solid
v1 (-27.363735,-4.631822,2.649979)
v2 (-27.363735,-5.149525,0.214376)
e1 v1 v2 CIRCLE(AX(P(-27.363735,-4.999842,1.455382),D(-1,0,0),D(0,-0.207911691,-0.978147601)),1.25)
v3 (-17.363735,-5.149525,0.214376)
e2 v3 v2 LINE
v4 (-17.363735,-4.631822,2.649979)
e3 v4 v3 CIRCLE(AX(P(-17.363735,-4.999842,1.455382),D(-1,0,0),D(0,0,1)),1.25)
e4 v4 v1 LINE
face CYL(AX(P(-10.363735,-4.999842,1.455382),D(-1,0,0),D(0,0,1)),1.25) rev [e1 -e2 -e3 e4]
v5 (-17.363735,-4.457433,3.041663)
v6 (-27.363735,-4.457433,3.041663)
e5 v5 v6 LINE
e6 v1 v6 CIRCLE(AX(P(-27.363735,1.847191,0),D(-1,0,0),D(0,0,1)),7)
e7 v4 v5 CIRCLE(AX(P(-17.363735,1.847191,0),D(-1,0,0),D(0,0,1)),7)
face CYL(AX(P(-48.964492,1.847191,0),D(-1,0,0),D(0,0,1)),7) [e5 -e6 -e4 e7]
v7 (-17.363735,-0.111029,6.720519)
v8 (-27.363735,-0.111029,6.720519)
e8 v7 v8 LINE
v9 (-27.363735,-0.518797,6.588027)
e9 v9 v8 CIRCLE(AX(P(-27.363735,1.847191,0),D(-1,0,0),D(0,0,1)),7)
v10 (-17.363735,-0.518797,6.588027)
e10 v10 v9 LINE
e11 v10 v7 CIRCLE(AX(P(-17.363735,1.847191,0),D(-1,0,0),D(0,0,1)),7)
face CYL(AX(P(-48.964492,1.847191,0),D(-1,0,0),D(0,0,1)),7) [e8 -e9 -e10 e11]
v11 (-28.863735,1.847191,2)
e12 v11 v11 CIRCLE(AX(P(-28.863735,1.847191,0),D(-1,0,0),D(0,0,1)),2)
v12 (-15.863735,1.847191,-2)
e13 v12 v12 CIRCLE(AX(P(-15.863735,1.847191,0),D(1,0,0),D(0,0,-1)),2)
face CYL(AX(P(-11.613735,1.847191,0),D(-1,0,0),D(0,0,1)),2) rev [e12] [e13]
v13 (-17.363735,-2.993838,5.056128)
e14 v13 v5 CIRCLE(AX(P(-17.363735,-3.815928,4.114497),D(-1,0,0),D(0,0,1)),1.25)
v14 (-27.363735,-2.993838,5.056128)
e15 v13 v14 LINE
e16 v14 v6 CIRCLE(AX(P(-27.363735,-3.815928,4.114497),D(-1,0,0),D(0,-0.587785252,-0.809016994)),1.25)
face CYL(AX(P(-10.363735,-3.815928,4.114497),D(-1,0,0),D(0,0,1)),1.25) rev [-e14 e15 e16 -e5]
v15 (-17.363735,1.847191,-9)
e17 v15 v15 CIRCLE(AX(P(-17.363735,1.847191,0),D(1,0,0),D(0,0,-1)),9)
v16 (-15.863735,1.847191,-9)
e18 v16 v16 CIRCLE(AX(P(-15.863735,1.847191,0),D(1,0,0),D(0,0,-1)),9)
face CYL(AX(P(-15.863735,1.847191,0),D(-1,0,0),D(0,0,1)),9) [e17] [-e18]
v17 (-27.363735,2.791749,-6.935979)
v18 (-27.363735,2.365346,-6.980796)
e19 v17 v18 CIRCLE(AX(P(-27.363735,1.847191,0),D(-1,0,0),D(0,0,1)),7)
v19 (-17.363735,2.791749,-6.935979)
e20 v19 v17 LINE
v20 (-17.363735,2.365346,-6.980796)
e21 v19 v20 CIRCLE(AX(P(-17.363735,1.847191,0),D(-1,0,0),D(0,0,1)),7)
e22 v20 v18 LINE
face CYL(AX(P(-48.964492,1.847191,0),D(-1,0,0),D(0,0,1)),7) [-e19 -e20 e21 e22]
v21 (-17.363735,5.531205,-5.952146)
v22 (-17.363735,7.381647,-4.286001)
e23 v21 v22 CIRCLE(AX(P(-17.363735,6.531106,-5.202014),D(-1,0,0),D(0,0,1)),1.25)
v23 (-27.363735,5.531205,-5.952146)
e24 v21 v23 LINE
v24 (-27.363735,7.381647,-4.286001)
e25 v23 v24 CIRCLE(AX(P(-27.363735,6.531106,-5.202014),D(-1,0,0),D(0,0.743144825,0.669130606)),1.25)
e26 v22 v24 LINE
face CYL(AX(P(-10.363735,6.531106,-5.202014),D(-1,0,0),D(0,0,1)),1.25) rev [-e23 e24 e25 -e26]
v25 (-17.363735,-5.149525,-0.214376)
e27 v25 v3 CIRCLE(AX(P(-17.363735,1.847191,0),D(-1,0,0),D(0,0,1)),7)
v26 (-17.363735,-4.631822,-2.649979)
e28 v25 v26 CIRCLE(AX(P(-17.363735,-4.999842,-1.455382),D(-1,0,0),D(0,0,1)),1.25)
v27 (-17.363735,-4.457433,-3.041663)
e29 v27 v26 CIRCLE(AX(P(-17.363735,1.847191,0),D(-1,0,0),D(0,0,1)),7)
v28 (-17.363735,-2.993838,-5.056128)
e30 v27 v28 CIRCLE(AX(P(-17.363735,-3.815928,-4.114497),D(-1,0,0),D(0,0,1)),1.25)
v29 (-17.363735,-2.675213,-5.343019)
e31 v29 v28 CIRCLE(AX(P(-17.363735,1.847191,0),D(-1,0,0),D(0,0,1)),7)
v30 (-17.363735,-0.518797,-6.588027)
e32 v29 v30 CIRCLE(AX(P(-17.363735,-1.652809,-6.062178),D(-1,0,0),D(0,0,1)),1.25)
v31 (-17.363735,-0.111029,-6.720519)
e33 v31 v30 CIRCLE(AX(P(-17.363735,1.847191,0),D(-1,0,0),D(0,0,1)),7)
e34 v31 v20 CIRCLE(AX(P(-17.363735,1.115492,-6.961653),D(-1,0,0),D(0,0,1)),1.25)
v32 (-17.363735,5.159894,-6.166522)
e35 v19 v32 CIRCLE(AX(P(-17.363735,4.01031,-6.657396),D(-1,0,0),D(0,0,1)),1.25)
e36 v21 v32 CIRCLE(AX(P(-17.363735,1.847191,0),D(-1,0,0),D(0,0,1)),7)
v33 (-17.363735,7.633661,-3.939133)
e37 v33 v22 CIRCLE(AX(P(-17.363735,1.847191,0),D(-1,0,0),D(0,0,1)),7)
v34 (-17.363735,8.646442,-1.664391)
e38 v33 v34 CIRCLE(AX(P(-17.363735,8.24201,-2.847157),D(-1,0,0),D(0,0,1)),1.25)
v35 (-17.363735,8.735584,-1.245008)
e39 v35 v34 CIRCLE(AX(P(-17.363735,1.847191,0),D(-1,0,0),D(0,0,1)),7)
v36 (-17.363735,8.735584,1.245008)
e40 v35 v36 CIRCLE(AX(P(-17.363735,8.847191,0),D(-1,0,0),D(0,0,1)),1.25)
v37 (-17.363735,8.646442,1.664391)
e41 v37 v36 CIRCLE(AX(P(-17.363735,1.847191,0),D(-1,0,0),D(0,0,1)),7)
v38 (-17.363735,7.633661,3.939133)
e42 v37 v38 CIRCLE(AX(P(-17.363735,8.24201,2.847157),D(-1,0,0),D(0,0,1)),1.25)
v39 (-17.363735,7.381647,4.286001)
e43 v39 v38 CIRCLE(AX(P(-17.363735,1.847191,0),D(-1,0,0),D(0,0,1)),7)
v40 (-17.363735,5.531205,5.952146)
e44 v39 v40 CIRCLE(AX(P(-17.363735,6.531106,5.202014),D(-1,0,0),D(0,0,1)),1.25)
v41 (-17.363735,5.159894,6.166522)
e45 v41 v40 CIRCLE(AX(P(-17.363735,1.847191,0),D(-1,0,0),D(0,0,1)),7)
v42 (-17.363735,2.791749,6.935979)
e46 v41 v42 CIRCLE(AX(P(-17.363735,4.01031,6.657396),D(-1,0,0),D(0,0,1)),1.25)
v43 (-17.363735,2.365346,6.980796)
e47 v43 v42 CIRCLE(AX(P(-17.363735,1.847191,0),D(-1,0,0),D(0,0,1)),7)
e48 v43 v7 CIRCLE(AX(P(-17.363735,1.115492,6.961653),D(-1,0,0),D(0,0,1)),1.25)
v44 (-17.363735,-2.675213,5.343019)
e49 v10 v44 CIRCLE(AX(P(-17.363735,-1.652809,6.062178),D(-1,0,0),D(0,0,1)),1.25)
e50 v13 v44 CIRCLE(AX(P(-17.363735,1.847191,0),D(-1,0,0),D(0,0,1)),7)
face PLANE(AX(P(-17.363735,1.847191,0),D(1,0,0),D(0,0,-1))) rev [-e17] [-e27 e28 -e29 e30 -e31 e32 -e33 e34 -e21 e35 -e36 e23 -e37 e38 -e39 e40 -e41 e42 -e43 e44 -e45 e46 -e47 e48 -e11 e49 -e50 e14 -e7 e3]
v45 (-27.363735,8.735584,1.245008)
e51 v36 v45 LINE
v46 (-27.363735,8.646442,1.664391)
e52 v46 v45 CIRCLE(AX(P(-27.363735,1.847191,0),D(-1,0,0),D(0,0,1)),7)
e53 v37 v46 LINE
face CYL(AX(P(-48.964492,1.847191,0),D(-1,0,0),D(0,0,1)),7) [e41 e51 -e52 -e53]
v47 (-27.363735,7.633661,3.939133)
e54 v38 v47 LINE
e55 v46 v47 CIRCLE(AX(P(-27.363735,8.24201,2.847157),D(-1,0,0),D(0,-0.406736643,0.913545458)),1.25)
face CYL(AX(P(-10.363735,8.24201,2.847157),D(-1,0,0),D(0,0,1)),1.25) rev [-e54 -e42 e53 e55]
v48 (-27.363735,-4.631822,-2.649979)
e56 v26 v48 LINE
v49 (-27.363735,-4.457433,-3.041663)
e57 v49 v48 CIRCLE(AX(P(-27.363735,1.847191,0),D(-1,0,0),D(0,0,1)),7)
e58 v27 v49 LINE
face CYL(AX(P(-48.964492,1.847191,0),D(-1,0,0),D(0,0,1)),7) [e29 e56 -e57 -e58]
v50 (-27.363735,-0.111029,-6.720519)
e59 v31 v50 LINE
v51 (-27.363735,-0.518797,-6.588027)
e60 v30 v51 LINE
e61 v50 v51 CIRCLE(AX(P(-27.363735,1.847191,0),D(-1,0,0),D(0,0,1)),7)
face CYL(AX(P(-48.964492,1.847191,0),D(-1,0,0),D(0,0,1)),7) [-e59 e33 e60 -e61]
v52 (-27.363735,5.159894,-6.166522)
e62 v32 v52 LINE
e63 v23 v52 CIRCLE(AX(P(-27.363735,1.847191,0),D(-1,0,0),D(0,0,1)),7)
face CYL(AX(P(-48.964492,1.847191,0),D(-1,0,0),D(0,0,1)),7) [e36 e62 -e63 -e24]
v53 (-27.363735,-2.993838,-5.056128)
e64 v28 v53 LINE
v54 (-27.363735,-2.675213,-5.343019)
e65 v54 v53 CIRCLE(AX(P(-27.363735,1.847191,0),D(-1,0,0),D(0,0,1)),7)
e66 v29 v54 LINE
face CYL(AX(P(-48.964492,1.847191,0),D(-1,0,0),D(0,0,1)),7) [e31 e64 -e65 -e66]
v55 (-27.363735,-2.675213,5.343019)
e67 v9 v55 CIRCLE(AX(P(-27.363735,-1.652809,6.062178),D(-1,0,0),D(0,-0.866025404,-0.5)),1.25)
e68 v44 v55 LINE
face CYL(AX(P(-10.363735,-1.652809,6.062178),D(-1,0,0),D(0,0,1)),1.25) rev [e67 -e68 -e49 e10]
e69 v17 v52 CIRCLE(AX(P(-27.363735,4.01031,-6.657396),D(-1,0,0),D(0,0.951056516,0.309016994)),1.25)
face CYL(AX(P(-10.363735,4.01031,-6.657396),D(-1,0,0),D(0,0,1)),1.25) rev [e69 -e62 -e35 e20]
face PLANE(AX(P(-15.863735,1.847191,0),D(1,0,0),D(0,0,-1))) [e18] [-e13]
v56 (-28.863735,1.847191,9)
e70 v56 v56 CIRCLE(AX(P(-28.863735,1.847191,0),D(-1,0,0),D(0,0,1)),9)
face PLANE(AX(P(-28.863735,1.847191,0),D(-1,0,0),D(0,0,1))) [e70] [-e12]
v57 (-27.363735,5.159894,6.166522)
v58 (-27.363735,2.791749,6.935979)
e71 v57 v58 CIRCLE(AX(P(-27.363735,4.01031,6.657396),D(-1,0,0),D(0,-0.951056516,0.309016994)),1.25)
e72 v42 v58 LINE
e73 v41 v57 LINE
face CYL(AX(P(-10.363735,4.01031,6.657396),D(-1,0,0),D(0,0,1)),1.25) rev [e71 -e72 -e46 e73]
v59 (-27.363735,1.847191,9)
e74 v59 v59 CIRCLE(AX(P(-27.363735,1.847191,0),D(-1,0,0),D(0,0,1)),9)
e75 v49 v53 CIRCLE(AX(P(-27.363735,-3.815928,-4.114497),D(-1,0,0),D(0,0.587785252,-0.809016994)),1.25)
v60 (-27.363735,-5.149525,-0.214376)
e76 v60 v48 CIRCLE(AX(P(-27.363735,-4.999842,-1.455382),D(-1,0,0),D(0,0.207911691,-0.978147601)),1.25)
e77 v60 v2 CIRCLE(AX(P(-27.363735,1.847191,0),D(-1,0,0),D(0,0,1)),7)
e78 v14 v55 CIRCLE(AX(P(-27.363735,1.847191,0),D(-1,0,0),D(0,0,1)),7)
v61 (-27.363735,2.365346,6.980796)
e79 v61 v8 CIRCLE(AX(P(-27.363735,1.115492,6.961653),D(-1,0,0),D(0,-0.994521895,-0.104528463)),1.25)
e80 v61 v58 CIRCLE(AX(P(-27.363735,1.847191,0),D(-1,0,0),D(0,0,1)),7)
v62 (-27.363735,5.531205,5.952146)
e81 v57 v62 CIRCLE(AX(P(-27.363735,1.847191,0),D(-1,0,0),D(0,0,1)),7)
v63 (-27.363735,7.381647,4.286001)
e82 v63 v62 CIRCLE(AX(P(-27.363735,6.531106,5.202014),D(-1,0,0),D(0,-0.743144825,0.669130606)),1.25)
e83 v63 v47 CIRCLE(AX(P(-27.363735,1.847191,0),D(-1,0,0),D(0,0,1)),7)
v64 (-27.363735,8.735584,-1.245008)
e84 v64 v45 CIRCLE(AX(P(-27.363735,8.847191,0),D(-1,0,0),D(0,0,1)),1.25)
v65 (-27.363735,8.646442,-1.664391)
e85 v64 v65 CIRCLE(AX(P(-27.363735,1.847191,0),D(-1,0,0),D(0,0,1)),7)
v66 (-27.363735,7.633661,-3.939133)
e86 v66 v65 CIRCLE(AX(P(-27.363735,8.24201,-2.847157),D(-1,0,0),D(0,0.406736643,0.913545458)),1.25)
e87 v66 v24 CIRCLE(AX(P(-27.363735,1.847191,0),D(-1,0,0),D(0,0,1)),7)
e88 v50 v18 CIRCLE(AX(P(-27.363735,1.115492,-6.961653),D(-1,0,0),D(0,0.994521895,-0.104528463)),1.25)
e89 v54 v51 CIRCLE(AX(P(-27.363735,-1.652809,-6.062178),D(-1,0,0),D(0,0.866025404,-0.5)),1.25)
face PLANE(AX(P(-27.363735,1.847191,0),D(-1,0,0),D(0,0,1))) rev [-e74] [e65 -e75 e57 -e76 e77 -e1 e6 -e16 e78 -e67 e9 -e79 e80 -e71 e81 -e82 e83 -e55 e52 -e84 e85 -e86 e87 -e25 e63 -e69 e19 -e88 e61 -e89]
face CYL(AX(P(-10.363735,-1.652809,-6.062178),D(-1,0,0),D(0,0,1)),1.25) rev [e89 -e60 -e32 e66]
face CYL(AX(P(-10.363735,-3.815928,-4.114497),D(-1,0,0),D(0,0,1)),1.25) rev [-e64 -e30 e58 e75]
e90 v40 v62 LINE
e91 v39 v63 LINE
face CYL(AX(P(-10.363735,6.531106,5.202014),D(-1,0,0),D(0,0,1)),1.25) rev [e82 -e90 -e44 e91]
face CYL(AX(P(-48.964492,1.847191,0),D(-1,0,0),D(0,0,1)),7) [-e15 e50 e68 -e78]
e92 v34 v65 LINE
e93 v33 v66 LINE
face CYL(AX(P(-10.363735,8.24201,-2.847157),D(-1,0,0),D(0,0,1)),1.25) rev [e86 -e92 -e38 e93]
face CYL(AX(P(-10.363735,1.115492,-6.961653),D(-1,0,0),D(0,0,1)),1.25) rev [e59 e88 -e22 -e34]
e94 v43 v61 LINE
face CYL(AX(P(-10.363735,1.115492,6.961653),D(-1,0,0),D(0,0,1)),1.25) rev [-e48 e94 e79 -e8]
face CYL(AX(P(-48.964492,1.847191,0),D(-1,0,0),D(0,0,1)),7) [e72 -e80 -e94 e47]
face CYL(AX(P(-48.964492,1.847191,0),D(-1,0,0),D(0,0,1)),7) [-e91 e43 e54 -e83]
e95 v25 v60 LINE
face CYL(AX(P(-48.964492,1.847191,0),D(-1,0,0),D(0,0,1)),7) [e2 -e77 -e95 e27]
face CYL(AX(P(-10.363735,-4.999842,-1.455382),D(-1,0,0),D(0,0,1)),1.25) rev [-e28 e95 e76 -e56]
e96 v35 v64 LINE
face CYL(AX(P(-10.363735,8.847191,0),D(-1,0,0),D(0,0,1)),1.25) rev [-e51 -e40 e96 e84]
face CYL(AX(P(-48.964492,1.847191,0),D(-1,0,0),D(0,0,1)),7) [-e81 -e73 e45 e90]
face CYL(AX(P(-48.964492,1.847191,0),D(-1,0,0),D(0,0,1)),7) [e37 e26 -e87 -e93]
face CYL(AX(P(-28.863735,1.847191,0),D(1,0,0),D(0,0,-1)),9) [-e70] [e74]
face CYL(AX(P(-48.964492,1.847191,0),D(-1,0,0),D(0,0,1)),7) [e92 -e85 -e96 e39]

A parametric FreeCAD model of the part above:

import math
import FreeCAD as App
import Part
import Sketcher
from FreeCAD import Vector

doc = App.newDocument("Part")
params = doc.addObject("Spreadsheet::Sheet", "Params")
for row, (alias, value) in enumerate([
    ("sketch1_width", "10 mm"),
    ("sketch1_height", "5 mm"),
    ("sketch1_height2", "2 mm"),
    ("sketch1_width2", "12.5 mm"),
    ("revolution_angle", "360 deg"),
    ("sketch2_diameter", "4 mm"),
    ("pocket1_length", "17 mm"),
    ("sketch3_radius", "1.25 mm"),
    ("pocket2_length", "17 mm"),
    ("sketch4_diameter", "18 mm"),
    ("sketch4_diameter2", "4 mm"),
    ("pad1_length", "1.5 mm"),
    ("sketch5_diameter", "18 mm"),
    ("sketch5_diameter2", "4 mm"),
    ("pad2_length", "1.5 mm"),
], start=1):
    params.set(f"A{row}", alias)
    params.set(f"B{row}", "=" + value)
    params.setAlias(f"B{row}", alias)

body = doc.addObject("PartDesign::Body", "Body")

# Sketch on XY plane
sketch1 = body.newObject("Sketcher::SketchObject", "Sketch")
sketch1.AttachmentSupport = (doc.getObject("XY_Plane"), [""])
sketch1.MapMode = "FlatFace"
sketch1.addGeometry([
    Part.LineSegment(Vector(-27.363735, 8.847191, 0), Vector(-27.363735, 3.847191, 0)),  # 0
    Part.LineSegment(Vector(-27.363735, 3.847191, 0), Vector(-28.613735, 3.847191, 0)),  # 1
    Part.LineSegment(Vector(-28.613735, 3.847191, 0), Vector(-28.613735, 1.847191, 0)),  # 2
    Part.LineSegment(Vector(-28.613735, 1.847191, 0), Vector(-16.113735, 1.847191, 0)),  # 3
    Part.LineSegment(Vector(-16.113735, 1.847191, 0), Vector(-16.113735, 3.847191, 0)),  # 4
    Part.LineSegment(Vector(-16.113735, 3.847191, 0), Vector(-17.363735, 3.847191, 0)),  # 5
    Part.LineSegment(Vector(-17.363735, 3.847191, 0), Vector(-17.363735, 8.847191, 0)),  # 6
    Part.LineSegment(Vector(-17.363735, 8.847191, 0), Vector(-27.363735, 8.847191, 0)),  # 7
], False)
sketch1.addGeometry(Part.LineSegment(Vector(-28.613735, 1.847191, 0), Vector(-16.113735, 1.847191, 0)), True)  # axis
sketch1.addConstraint([
    Sketcher.Constraint("Coincident", 0, 2, 1, 1),
    Sketcher.Constraint("Coincident", 1, 2, 2, 1),
    Sketcher.Constraint("Coincident", 2, 2, 3, 1),
    Sketcher.Constraint("Coincident", 3, 2, 4, 1),
    Sketcher.Constraint("Coincident", 4, 2, 5, 1),
    Sketcher.Constraint("Coincident", 5, 2, 6, 1),
    Sketcher.Constraint("Coincident", 6, 2, 7, 1),
    Sketcher.Constraint("Coincident", 7, 2, 0, 1),
    Sketcher.Constraint("Vertical", 0),
    Sketcher.Constraint("Horizontal", 1),
    Sketcher.Constraint("Vertical", 2),
    Sketcher.Constraint("Horizontal", 3),
    Sketcher.Constraint("Vertical", 4),
    Sketcher.Constraint("Horizontal", 5),
    Sketcher.Constraint("Vertical", 6),
    Sketcher.Constraint("Horizontal", 7),
    Sketcher.Constraint("Horizontal", 8),
    Sketcher.Constraint("Coincident", 8, 1, 2, 2),
    Sketcher.Constraint("Horizontal", 1, 2, 4, 2),
    Sketcher.Constraint("Vertical", 4, 2, 8, 2),
    Sketcher.Constraint("Equal", 1, 5),
    Sketcher.Constraint("DistanceX", 7, 2, 7, 1, 10.0),
    Sketcher.Constraint("DistanceY", 0, 2, 0, 1, 5.0),
    Sketcher.Constraint("DistanceY", 2, 2, 2, 1, 2.0),
    Sketcher.Constraint("DistanceX", 3, 1, 3, 2, 12.5),
    Sketcher.Constraint("DistanceY", -1, 1, 0, 2, 3.847191),
    Sketcher.Constraint("DistanceX", 0, 2, -1, 1, 27.363735),
])
sketch1.setExpression("Constraints[21]", "Params.sketch1_width")
sketch1.setExpression("Constraints[22]", "Params.sketch1_height")
sketch1.setExpression("Constraints[23]", "Params.sketch1_height2")
sketch1.setExpression("Constraints[24]", "Params.sketch1_width2")
revolution = body.newObject("PartDesign::Revolution", "Revolution")
revolution.Profile = sketch1
revolution.ReferenceAxis = (sketch1, ["Axis0"])
revolution.setExpression("Angle", "Params.revolution_angle")

# Sketch on YZ plane
sketch2 = body.newObject("Sketcher::SketchObject", "Sketch001")
sketch2.AttachmentSupport = (doc.getObject("YZ_Plane"), [""])
sketch2.MapMode = "FlatFace"
sketch2.AttachmentOffset = App.Placement(Vector(0, 0, -28.613735), App.Rotation())
sketch2.addGeometry(Part.Circle(Vector(1.847191, 0, 0), Vector(0, 0, 1), 2), False)
sketch2.addConstraint([
    Sketcher.Constraint("PointOnObject", 0, 3, -1),
    Sketcher.Constraint("Diameter", 0, 4.0),
    Sketcher.Constraint("DistanceX", -1, 1, 0, 3, 1.847191),
])
sketch2.setExpression("Constraints[1]", "Params.sketch2_diameter")
pocket1 = body.newObject("PartDesign::Pocket", "Pocket")
pocket1.Profile = sketch2
pocket1.setExpression("Length", "Params.pocket1_length")
pocket1.Reversed = True

# Sketch on YZ plane
sketch3 = body.newObject("Sketcher::SketchObject", "Sketch002")
sketch3.AttachmentSupport = (doc.getObject("YZ_Plane"), [""])
sketch3.MapMode = "FlatFace"
sketch3.AttachmentOffset = App.Placement(Vector(0, 0, -27.363735), App.Rotation())
sketch3.addGeometry([
    Part.LineSegment(Vector(11.530521, -1.25, 0), Vector(8.847191, -1.25, 0)),
    Part.ArcOfCircle(Part.Circle(Vector(8.847191, 0, 0), Vector(0, 0, 1), 1.25), math.radians(90), math.radians(270)),
    Part.LineSegment(Vector(8.847191, 1.25, 0), Vector(11.530521, 1.25, 0)),
    Part.LineSegment(Vector(11.530521, 1.25, 0), Vector(11.530521, -1.25, 0)),
], False)
sketch3.addConstraint([
    Sketcher.Constraint("Tangent", 0, 2, 1, 2),
    Sketcher.Constraint("Tangent", 1, 1, 2, 1),
    Sketcher.Constraint("Coincident", 2, 2, 3, 1),
    Sketcher.Constraint("Coincident", 3, 2, 0, 1),
    Sketcher.Constraint("Horizontal", 0),
    Sketcher.Constraint("Horizontal", 2),
    Sketcher.Constraint("Vertical", 3),
    Sketcher.Constraint("PointOnObject", 1, 3, -1),
    Sketcher.Constraint("Radius", 1, 1.25),
    Sketcher.Constraint("DistanceX", 0, 2, 0, 1, 2.68333),
    Sketcher.Constraint("DistanceX", -1, 1, 1, 3, 8.847191),
])
sketch3.setExpression("Constraints[8]", "Params.sketch3_radius")
pocket2 = body.newObject("PartDesign::Pocket", "Pocket001")
pocket2.Profile = sketch3
pocket2.setExpression("Length", "Params.pocket2_length")
pocket2.Reversed = True
doc.recompute()

datumline = body.newObject("PartDesign::Line", "DatumLine")
datumline.Placement = App.Placement(Vector(0, 1.847191, 0), App.Rotation(Vector(0, 0, 1), Vector(1, 0, 0)))
polarpattern = body.newObject("PartDesign::PolarPattern", "PolarPattern")
polarpattern.Originals = [pocket2]
polarpattern.Axis = (datumline, [""])
polarpattern.Angle = 360
polarpattern.Occurrences = 15
body.Tip = polarpattern

# Sketch on YZ plane
sketch4 = body.newObject("Sketcher::SketchObject", "Sketch003")
sketch4.AttachmentSupport = (doc.getObject("YZ_Plane"), [""])
sketch4.MapMode = "FlatFace"
sketch4.AttachmentOffset = App.Placement(Vector(0, 0, -28.863735), App.Rotation())
sketch4.addGeometry([
    Part.Circle(Vector(1.847191, 0, 0), Vector(0, 0, 1), 9),
    Part.Circle(Vector(1.847191, 0, 0), Vector(0, 0, 1), 2),
], False)
sketch4.addConstraint([
    Sketcher.Constraint("Coincident", 1, 3, 0, 3),
    Sketcher.Constraint("PointOnObject", 0, 3, -1),
    Sketcher.Constraint("Diameter", 0, 18.0),
    Sketcher.Constraint("Diameter", 1, 4.0),
    Sketcher.Constraint("DistanceX", -1, 1, 0, 3, 1.847191),
])
sketch4.setExpression("Constraints[2]", "Params.sketch4_diameter")
sketch4.setExpression("Constraints[3]", "Params.sketch4_diameter2")
pad1 = body.newObject("PartDesign::Pad", "Pad")
pad1.Profile = sketch4
pad1.setExpression("Length", "Params.pad1_length")

# Sketch on YZ plane
sketch5 = body.newObject("Sketcher::SketchObject", "Sketch004")
sketch5.AttachmentSupport = (doc.getObject("YZ_Plane"), [""])
sketch5.MapMode = "FlatFace"
sketch5.AttachmentOffset = App.Placement(Vector(0, 0, -17.363735), App.Rotation())
sketch5.addGeometry([
    Part.Circle(Vector(1.847191, 0, 0), Vector(0, 0, 1), 9),
    Part.Circle(Vector(1.847191, 0, 0), Vector(0, 0, 1), 2),
], False)
sketch5.addConstraint([
    Sketcher.Constraint("Coincident", 1, 3, 0, 3),
    Sketcher.Constraint("PointOnObject", 0, 3, -1),
    Sketcher.Constraint("Diameter", 0, 18.0),
    Sketcher.Constraint("Diameter", 1, 4.0),
    Sketcher.Constraint("DistanceX", -1, 1, 0, 3, 1.847191),
])
sketch5.setExpression("Constraints[2]", "Params.sketch5_diameter")
sketch5.setExpression("Constraints[3]", "Params.sketch5_diameter2")
pad2 = body.newObject("PartDesign::Pad", "Pad001")
pad2.Profile = sketch5
pad2.setExpression("Length", "Params.pad2_length")

doc.recompute()
